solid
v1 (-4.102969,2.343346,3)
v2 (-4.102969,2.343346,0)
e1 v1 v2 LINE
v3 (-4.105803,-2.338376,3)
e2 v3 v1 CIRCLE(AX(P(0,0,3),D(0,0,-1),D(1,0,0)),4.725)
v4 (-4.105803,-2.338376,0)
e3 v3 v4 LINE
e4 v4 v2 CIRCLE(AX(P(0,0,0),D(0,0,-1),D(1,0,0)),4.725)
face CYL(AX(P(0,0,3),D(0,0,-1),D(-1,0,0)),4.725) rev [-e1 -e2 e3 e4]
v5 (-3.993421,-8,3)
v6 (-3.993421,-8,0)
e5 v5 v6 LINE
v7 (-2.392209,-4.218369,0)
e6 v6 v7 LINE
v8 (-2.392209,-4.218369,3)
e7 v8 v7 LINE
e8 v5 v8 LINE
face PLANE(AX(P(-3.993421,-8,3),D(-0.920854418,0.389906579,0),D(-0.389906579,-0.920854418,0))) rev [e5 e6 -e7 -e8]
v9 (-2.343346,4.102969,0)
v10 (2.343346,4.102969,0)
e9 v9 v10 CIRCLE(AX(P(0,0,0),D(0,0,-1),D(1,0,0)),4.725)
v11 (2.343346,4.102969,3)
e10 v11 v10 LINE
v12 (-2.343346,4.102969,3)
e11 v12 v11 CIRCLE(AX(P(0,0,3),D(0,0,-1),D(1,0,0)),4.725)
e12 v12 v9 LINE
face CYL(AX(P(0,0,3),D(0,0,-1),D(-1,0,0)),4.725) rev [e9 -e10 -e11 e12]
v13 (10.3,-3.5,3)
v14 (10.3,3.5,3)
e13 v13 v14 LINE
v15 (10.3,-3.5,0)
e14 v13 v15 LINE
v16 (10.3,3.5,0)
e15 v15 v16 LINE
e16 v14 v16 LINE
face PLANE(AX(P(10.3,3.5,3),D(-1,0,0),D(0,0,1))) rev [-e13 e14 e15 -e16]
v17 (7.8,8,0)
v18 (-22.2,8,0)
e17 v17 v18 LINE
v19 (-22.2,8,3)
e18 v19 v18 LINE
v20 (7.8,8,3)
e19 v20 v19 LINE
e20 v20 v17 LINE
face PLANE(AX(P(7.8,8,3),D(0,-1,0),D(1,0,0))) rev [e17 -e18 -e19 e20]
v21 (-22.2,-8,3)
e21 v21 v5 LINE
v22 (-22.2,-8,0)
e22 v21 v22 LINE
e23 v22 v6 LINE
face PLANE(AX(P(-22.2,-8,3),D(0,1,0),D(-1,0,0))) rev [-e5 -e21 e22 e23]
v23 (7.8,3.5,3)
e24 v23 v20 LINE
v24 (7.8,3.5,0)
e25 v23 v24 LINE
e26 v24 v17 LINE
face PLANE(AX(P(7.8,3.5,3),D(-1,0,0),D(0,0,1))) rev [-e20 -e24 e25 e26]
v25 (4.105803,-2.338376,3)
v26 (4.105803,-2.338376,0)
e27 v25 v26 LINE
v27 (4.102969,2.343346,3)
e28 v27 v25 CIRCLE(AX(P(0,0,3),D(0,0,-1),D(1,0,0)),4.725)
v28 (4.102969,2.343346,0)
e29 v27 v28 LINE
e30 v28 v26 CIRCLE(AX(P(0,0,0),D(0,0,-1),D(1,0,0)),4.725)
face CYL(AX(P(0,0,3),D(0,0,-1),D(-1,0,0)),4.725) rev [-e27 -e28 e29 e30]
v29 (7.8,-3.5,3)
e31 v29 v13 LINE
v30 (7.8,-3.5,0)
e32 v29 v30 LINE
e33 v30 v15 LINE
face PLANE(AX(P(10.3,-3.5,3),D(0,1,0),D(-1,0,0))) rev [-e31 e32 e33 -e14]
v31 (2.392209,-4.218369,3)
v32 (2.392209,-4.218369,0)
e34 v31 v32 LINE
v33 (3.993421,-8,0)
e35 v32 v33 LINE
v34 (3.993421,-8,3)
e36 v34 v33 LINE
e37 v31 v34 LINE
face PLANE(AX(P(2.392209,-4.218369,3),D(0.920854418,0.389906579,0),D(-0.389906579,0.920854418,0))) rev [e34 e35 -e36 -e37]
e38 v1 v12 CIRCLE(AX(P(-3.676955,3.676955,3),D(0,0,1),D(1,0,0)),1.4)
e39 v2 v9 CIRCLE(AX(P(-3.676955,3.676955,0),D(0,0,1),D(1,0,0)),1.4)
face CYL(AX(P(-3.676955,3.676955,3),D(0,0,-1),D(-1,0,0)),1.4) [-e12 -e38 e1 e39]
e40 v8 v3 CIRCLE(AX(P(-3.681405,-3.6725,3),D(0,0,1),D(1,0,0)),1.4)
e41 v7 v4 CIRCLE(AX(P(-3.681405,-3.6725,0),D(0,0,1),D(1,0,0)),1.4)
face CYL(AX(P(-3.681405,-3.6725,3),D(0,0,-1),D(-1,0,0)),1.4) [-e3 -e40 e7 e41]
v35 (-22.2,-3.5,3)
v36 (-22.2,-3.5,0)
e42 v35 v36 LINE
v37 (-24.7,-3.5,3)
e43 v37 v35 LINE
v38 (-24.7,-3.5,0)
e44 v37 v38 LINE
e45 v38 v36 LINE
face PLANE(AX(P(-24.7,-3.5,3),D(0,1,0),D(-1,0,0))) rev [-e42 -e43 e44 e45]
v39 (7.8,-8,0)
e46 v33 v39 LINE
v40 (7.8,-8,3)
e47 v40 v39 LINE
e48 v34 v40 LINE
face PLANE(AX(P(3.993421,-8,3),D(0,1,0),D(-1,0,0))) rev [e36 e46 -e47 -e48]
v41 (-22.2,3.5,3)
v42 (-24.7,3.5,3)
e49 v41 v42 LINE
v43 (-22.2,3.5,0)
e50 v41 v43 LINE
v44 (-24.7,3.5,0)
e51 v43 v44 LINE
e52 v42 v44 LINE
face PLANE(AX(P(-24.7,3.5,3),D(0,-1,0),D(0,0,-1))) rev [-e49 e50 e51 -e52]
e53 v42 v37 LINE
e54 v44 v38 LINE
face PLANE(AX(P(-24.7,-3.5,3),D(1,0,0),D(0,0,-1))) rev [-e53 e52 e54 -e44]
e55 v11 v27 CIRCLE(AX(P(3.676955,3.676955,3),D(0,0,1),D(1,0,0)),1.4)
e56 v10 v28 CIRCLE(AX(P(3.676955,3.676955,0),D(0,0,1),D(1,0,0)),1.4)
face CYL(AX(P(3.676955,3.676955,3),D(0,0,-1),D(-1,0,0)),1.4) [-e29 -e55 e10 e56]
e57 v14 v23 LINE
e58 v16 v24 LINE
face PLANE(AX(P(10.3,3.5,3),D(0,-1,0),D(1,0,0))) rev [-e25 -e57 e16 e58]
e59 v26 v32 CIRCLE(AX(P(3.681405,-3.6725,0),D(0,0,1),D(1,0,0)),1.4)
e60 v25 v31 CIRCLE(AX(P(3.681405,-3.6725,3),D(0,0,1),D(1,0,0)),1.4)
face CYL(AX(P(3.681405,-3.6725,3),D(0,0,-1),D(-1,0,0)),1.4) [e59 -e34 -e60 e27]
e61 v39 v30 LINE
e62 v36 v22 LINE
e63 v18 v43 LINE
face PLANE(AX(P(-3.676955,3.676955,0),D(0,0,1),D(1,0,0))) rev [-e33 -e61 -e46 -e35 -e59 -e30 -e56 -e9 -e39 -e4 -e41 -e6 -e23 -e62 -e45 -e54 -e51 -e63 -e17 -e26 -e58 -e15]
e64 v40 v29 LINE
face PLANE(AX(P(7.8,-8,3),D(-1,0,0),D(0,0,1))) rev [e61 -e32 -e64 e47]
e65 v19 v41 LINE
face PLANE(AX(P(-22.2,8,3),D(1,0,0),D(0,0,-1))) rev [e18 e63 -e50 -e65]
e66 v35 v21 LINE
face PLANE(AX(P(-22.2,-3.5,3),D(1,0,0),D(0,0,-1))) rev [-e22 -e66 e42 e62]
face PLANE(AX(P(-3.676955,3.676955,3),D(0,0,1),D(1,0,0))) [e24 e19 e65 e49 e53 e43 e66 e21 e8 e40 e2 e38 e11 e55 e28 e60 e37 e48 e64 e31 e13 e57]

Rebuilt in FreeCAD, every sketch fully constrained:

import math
import FreeCAD as App
import Part
import Sketcher
from FreeCAD import Vector
Q = App.Units.Quantity

doc = App.newDocument("Part")
body = doc.addObject("PartDesign::Body", "Body")

# Sketch on XY plane
sketch1 = doc.addObject("Sketcher::SketchObject", "Sketch")
body.addObject(sketch1)
sketch1.AttachmentSupport = (doc.XY_Plane, [""])
sketch1.MapMode = "FlatFace"
sketch1.addGeometry([
    Part.LineSegment(Vector(-24.7, -3.5, 0), Vector(-22.2, -3.5, 0)),  # 0
    Part.LineSegment(Vector(-22.2, -3.5, 0), Vector(-22.2, -8, 0)),  # 1
    Part.LineSegment(Vector(-22.2, -8, 0), Vector(-4, -8, 0)),  # 2
    Part.LineSegment(Vector(-4, -8, 0), Vector(-2.4, -4.2, 0)),  # 3
    Part.ArcOfCircle(Part.Circle(Vector(-3.7, -3.7, 0), Vector(0, 0, 1), 1.4), math.radians(-23), math.radians(108)),  # 4
    Part.ArcOfCircle(Part.Circle(Vector(0, 0, 0), Vector(0, 0, 1), 4.7), math.radians(150), math.radians(210)),  # 5
    Part.ArcOfCircle(Part.Circle(Vector(-3.7, 3.7, 0), Vector(0, 0, 1), 1.4), math.radians(-108), math.radians(18)),  # 6
    Part.ArcOfCircle(Part.Circle(Vector(0, 0, 0), Vector(0, 0, 1), 4.7), math.radians(60), math.radians(120)),  # 7
    Part.ArcOfCircle(Part.Circle(Vector(3.7, 3.7, 0), Vector(0, 0, 1), 1.4), math.radians(162), math.radians(288)),  # 8
    Part.ArcOfCircle(Part.Circle(Vector(0, 0, 0), Vector(0, 0, 1), 4.7), math.radians(-30), math.radians(30)),  # 9
    Part.ArcOfCircle(Part.Circle(Vector(3.7, -3.7, 0), Vector(0, 0, 1), 1.4), math.radians(72), math.radians(203)),  # 10
    Part.LineSegment(Vector(2.4, -4.2, 0), Vector(4, -8, 0)),  # 11
    Part.LineSegment(Vector(4, -8, 0), Vector(7.8, -8, 0)),  # 12
    Part.LineSegment(Vector(7.8, -8, 0), Vector(7.8, -3.5, 0)),  # 13
    Part.LineSegment(Vector(7.8, -3.5, 0), Vector(10.3, -3.5, 0)),  # 14
    Part.LineSegment(Vector(10.3, -3.5, 0), Vector(10.3, 3.5, 0)),  # 15
    Part.LineSegment(Vector(10.3, 3.5, 0), Vector(7.8, 3.5, 0)),  # 16
    Part.LineSegment(Vector(7.8, 3.5, 0), Vector(7.8, 8, 0)),  # 17
    Part.LineSegment(Vector(7.8, 8, 0), Vector(-22.2, 8, 0)),  # 18
    Part.LineSegment(Vector(-22.2, 8, 0), Vector(-22.2, 3.5, 0)),  # 19
    Part.LineSegment(Vector(-22.2, 3.5, 0), Vector(-24.7, 3.5, 0)),  # 20
    Part.LineSegment(Vector(-24.7, 3.5, 0), Vector(-24.7, -3.5, 0)),  # 21
], False)
sketch1.addConstraint([
    Sketcher.Constraint("Coincident", 0, 2, 1, 1),
    Sketcher.Constraint("Coincident", 1, 2, 2, 1),
    Sketcher.Constraint("Coincident", 2, 2, 3, 1),
    Sketcher.Constraint("Tangent", 3, 2, 4, 1),
    Sketcher.Constraint("Coincident", 4, 2, 5, 2),
    Sketcher.Constraint("Coincident", 5, 1, 6, 1),
    Sketcher.Constraint("Coincident", 6, 2, 7, 2),
    Sketcher.Constraint("Coincident", 7, 1, 8, 1),
    Sketcher.Constraint("Coincident", 8, 2, 9, 2),
    Sketcher.Constraint("Coincident", 9, 1, 10, 1),
    Sketcher.Constraint("Tangent", 10, 2, 11, 1),
    Sketcher.Constraint("Coincident", 11, 2, 12, 1),
    Sketcher.Constraint("Coincident", 12, 2, 13, 1),
    Sketcher.Constraint("Coincident", 13, 2, 14, 1),
    Sketcher.Constraint("Coincident", 14, 2, 15, 1),
    Sketcher.Constraint("Coincident", 15, 2, 16, 1),
    Sketcher.Constraint("Coincident", 16, 2, 17, 1),
    Sketcher.Constraint("Coincident", 17, 2, 18, 1),
    Sketcher.Constraint("Coincident", 18, 2, 19, 1),
    Sketcher.Constraint("Coincident", 19, 2, 20, 1),
    Sketcher.Constraint("Coincident", 20, 2, 21, 1),
    Sketcher.Constraint("Coincident", 21, 2, 0, 1),
    Sketcher.Constraint("Horizontal", 0),
    Sketcher.Constraint("Vertical", 1),
    Sketcher.Constraint("Horizontal", 2),
    Sketcher.Constraint("Horizontal", 12),
    Sketcher.Constraint("Vertical", 13),
    Sketcher.Constraint("Horizontal", 14),
    Sketcher.Constraint("Vertical", 15),
    Sketcher.Constraint("Horizontal", 16),
    Sketcher.Constraint("Vertical", 17),
    Sketcher.Constraint("Horizontal", 18),
    Sketcher.Constraint("Vertical", 19),
    Sketcher.Constraint("Horizontal", 20),
    Sketcher.Constraint("Vertical", 21),
    Sketcher.Constraint("Coincident", 5, 3, -1, 1),
    Sketcher.Constraint("Coincident", 7, 3, -1, 1),
    Sketcher.Constraint("Coincident", 9, 3, -1, 1),
    Sketcher.Constraint("Equal", 4, 6),
    Sketcher.Constraint("Equal", 5, 7),
    Sketcher.Constraint("Equal", 6, 8),
    Sketcher.Constraint("Equal", 7, 9),
    Sketcher.Constraint("Equal", 8, 10),
    Sketcher.Constraint("Symmetric", 6, 3, 8, 3, -2),
    Sketcher.Constraint("Symmetric", 4, 3, 10, 3, -2),
    Sketcher.Constraint("Symmetric", 2, 2, 11, 2, -2),
    Sketcher.Constraint("Symmetric", 13, 2, 16, 2, -1),
    Sketcher.Constraint("Symmetric", 1, 2, 18, 2, -1),
    Sketcher.Constraint("Horizontal", 0, 2, 13, 2),
    Sketcher.Constraint("Horizontal", 16, 2, 19, 2),
    Sketcher.Constraint("Equal", 0, 14),
    Sketcher.Constraint("Radius", 4, Q("1.4 mm")),
    Sketcher.Constraint("DistanceX", 18, 2, 18, 1, Q("30 mm")),
    Sketcher.Constraint("DistanceY", 15, 1, 15, 2, Q("7 mm")),
    Sketcher.Constraint("DistanceX", 0, 1, 0, 2, Q("2.5 mm")),
    Sketcher.Constraint("DistanceY", 1, 2, 1, 1, Q("4.5 mm")),
    Sketcher.Constraint("Radius", 5, Q("4.725 mm")),
    Sketcher.Constraint("DistanceX", 0, 2, -1, 1, Q("22.2 mm")),
    Sketcher.Constraint("DistanceX", 2, 1, 2, 2, Q("18.206579 mm")),
    Sketcher.Constraint("DistanceY", 4, 3, -1, 1, Q("3.6725 mm")),
    Sketcher.Constraint("DistanceX", 4, 2, 4, 3, Q("0.424398 mm")),
    Sketcher.Constraint("DistanceX", 5, 1, -1, 1, Q("4.102969 mm")),
    Sketcher.Constraint("DistanceY", -1, 1, 6, 2, Q("4.102969 mm")),
])
pad1 = doc.addObject("PartDesign::Pad", "Pad")
body.addObject(pad1)
pad1.Profile = sketch1
pad1.Length = 3

doc.recompute()
